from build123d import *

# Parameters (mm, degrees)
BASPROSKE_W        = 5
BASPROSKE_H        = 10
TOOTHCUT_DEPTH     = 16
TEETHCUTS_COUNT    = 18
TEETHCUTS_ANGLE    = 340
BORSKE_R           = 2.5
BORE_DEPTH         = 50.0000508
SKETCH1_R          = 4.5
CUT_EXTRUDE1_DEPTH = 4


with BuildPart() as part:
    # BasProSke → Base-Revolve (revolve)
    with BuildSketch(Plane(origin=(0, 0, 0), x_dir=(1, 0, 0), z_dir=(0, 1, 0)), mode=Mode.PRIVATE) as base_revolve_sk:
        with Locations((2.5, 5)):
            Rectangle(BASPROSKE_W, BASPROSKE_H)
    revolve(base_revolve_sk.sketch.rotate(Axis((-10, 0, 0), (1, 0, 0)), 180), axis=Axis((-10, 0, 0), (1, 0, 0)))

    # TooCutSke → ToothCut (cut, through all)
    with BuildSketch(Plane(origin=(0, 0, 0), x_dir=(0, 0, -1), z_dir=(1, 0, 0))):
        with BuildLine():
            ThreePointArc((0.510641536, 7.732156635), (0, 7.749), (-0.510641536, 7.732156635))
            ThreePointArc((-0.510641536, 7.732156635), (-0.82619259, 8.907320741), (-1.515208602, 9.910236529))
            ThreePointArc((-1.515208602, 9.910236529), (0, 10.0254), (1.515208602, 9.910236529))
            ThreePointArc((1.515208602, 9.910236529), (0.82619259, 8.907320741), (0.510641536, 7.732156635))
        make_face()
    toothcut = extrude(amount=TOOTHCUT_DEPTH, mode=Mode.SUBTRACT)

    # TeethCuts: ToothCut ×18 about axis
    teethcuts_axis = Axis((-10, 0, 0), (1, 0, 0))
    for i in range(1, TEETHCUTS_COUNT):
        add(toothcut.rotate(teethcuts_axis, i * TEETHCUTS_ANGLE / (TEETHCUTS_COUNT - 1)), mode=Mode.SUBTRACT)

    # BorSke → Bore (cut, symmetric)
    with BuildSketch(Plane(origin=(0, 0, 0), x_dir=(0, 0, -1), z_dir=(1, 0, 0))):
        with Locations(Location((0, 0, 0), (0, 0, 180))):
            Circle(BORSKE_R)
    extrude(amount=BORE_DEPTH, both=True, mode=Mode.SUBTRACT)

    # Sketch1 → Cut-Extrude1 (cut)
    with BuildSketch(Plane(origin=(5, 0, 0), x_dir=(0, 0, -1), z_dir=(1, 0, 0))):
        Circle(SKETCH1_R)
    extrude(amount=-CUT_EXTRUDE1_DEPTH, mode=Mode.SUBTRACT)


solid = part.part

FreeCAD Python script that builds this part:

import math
import FreeCAD as App
import Part
import Sketcher

V = App.Vector
Q = App.Units.Quantity


def add_polygon(sketch, points):
    """Adds a closed chain of lines whose ends are joined by coincident constraints."""
    first, n = sketch.GeometryCount, len(points)
    for a, b in zip(points, points[1:] + points[:1]):
        sketch.addGeometry(Part.LineSegment(App.Vector(*a, 0), App.Vector(*b, 0)), False)
    for i in range(n):
        sketch.addConstraint(Sketcher.Constraint("Coincident", first + i, 2, first + (i + 1) % n, 1))

doc = App.newDocument("Part")
params = doc.addObject("Spreadsheet::Sheet", "Params")
for row, (alias, value) in enumerate([
    ("sketch1_width", "5 mm"),
    ("sketch1_height", "10 mm"),
    ("revolution_angle", "360 deg"),
    ("sketch2_radius", "3.6 mm"),
    ("sketch3_diameter", "5 mm"),
    ("pocket2_length", "100.000102 mm"),
    ("sketch4_diameter", "9 mm"),
    ("pocket3_length", "4 mm"),
], start=1):
    params.set(f"A{row}", alias)
    params.set(f"B{row}", "=" + value)
    params.setAlias(f"B{row}", alias)

body = doc.addObject("PartDesign::Body", "Body")

# Sketch on XZ plane
sketch1 = body.newObject("Sketcher::SketchObject", "Sketch")
sketch1.AttachmentSupport = (doc.getObject("XZ_Plane"), [""])
sketch1.MapMode = "FlatFace"
add_polygon(sketch1, [(0, -10), (0, 0), (5, 0), (5, -10)])  # lines 0-3
sketch1.addConstraint(Sketcher.Constraint("Vertical", 0))
sketch1.addConstraint(Sketcher.Constraint("Horizontal", 1))
sketch1.addConstraint(Sketcher.Constraint("Vertical", 2))
sketch1.addConstraint(Sketcher.Constraint("Horizontal", 3))
sketch1.addConstraint(Sketcher.Constraint("Coincident", 0, 2, -1, 1))
sketch1.addConstraint(Sketcher.Constraint("DistanceX", 1, 1, 1, 2, Q("5 mm")))
sketch1.addConstraint(Sketcher.Constraint("DistanceY", 0, 1, 0, 2, Q("10 mm")))
sketch1.setExpression("Constraints[9]", "Params.sketch1_width")
sketch1.setExpression("Constraints[10]", "Params.sketch1_height")
revolution = body.newObject("PartDesign::Revolution", "Revolution")
revolution.Profile = sketch1
revolution.ReferenceAxis = (sketch1, ["H_Axis"])
revolution.setExpression("Angle", "Params.revolution_angle")

# Sketch on YZ plane
sketch2 = body.newObject("Sketcher::SketchObject", "Sketch001")
sketch2.AttachmentSupport = (doc.getObject("YZ_Plane"), [""])
sketch2.MapMode = "FlatFace"
sketch2.addGeometry(Part.ArcOfCircle(Part.Circle(V(0, 0, 0), V(0, 0, 1), 7.7), math.radians(-3.78), math.radians(3.78)), False)
sketch2.addGeometry(Part.ArcOfCircle(Part.Circle(V(7.4, -4.1, 0), V(0, 0, 1), 3.6), math.radians(46), math.radians(85)), False)
sketch2.addGeometry(Part.ArcOfCircle(Part.Circle(V(0, 0, 0), V(0, 0, 1), 10), math.radians(-8.69), math.radians(8.69)), False)
sketch2.addGeometry(Part.ArcOfCircle(Part.Circle(V(7.4, 4.1, 0), V(0, 0, 1), 3.6), math.radians(-85), math.radians(-46)), False)
sketch2.addConstraint(Sketcher.Constraint("Coincident", 0, 1, 1, 2))
sketch2.addConstraint(Sketcher.Constraint("Coincident", 1, 1, 2, 1))
sketch2.addConstraint(Sketcher.Constraint("Coincident", 2, 2, 3, 2))
sketch2.addConstraint(Sketcher.Constraint("Coincident", 3, 1, 0, 2))
sketch2.addConstraint(Sketcher.Constraint("Coincident", 0, 3, -1, 1))
sketch2.addConstraint(Sketcher.Constraint("Coincident", 2, 3, -1, 1))
sketch2.addConstraint(Sketcher.Constraint("Equal", 1, 3))
sketch2.addConstraint(Sketcher.Constraint("Symmetric", 1, 3, 3, 3, -1))
sketch2.addConstraint(Sketcher.Constraint("Radius", 1, Q("3.6 mm")))
sketch2.addConstraint(Sketcher.Constraint("Radius", 0, Q("7.749 mm")))
sketch2.addConstraint(Sketcher.Constraint("Radius", 2, Q("10.0254 mm")))
sketch2.addConstraint(Sketcher.Constraint("DistanceX", -1, 1, 1, 3, Q("7.399578 mm")))
sketch2.addConstraint(Sketcher.Constraint("DistanceY", 0, 1, -1, 1, Q("0.510642 mm")))
sketch2.setExpression("Constraints[8]", "Params.sketch2_radius")
pocket1 = body.newObject("PartDesign::Pocket", "Pocket")
pocket1.Profile = sketch2
pocket1.Type = "ThroughAll"
pocket1.Reversed = True
doc.recompute()

polarpattern = body.newObject("PartDesign::PolarPattern", "PolarPattern")
polarpattern.Originals = [pocket1]
polarpattern.Axis = (doc.getObject("X_Axis"), [""])
polarpattern.Angle = 360
polarpattern.Occurrences = 18
body.Tip = polarpattern

# Sketch on YZ plane
sketch3 = body.newObject("Sketcher::SketchObject", "Sketch002")
sketch3.AttachmentSupport = (doc.getObject("YZ_Plane"), [""])
sketch3.MapMode = "FlatFace"
sketch3.addGeometry(Part.Circle(V(0, 0, 0), V(0, 0, 1), 2.5), False)
sketch3.addConstraint(Sketcher.Constraint("Coincident", 0, 3, -1, 1))
sketch3.addConstraint(Sketcher.Constraint("Diameter", 0, Q("5 mm")))
sketch3.setExpression("Constraints[1]", "Params.sketch3_diameter")
pocket2 = body.newObject("PartDesign::Pocket", "Pocket001")
pocket2.Profile = sketch3
pocket2.setExpression("Length", "Params.pocket2_length")
pocket2.Midplane = True

# Sketch on YZ plane
sketch4 = body.newObject("Sketcher::SketchObject", "Sketch003")
sketch4.AttachmentSupport = (doc.getObject("YZ_Plane"), [""])
sketch4.MapMode = "FlatFace"
sketch4.AttachmentOffset = App.Placement(V(0, 0, 5), App.Rotation())
sketch4.addGeometry(Part.Circle(V(0, 0, 0), V(0, 0, 1), 4.5), False)
sketch4.addConstraint(Sketcher.Constraint("Coincident", 0, 3, -1, 1))
sketch4.addConstraint(Sketcher.Constraint("Diameter", 0, Q("9 mm")))
sketch4.setExpression("Constraints[1]", "Params.sketch4_diameter")
pocket3 = body.newObject("PartDesign::Pocket", "Pocket002")
pocket3.Profile = sketch4
pocket3.setExpression("Length", "Params.pocket3_length")

doc.recompute()
